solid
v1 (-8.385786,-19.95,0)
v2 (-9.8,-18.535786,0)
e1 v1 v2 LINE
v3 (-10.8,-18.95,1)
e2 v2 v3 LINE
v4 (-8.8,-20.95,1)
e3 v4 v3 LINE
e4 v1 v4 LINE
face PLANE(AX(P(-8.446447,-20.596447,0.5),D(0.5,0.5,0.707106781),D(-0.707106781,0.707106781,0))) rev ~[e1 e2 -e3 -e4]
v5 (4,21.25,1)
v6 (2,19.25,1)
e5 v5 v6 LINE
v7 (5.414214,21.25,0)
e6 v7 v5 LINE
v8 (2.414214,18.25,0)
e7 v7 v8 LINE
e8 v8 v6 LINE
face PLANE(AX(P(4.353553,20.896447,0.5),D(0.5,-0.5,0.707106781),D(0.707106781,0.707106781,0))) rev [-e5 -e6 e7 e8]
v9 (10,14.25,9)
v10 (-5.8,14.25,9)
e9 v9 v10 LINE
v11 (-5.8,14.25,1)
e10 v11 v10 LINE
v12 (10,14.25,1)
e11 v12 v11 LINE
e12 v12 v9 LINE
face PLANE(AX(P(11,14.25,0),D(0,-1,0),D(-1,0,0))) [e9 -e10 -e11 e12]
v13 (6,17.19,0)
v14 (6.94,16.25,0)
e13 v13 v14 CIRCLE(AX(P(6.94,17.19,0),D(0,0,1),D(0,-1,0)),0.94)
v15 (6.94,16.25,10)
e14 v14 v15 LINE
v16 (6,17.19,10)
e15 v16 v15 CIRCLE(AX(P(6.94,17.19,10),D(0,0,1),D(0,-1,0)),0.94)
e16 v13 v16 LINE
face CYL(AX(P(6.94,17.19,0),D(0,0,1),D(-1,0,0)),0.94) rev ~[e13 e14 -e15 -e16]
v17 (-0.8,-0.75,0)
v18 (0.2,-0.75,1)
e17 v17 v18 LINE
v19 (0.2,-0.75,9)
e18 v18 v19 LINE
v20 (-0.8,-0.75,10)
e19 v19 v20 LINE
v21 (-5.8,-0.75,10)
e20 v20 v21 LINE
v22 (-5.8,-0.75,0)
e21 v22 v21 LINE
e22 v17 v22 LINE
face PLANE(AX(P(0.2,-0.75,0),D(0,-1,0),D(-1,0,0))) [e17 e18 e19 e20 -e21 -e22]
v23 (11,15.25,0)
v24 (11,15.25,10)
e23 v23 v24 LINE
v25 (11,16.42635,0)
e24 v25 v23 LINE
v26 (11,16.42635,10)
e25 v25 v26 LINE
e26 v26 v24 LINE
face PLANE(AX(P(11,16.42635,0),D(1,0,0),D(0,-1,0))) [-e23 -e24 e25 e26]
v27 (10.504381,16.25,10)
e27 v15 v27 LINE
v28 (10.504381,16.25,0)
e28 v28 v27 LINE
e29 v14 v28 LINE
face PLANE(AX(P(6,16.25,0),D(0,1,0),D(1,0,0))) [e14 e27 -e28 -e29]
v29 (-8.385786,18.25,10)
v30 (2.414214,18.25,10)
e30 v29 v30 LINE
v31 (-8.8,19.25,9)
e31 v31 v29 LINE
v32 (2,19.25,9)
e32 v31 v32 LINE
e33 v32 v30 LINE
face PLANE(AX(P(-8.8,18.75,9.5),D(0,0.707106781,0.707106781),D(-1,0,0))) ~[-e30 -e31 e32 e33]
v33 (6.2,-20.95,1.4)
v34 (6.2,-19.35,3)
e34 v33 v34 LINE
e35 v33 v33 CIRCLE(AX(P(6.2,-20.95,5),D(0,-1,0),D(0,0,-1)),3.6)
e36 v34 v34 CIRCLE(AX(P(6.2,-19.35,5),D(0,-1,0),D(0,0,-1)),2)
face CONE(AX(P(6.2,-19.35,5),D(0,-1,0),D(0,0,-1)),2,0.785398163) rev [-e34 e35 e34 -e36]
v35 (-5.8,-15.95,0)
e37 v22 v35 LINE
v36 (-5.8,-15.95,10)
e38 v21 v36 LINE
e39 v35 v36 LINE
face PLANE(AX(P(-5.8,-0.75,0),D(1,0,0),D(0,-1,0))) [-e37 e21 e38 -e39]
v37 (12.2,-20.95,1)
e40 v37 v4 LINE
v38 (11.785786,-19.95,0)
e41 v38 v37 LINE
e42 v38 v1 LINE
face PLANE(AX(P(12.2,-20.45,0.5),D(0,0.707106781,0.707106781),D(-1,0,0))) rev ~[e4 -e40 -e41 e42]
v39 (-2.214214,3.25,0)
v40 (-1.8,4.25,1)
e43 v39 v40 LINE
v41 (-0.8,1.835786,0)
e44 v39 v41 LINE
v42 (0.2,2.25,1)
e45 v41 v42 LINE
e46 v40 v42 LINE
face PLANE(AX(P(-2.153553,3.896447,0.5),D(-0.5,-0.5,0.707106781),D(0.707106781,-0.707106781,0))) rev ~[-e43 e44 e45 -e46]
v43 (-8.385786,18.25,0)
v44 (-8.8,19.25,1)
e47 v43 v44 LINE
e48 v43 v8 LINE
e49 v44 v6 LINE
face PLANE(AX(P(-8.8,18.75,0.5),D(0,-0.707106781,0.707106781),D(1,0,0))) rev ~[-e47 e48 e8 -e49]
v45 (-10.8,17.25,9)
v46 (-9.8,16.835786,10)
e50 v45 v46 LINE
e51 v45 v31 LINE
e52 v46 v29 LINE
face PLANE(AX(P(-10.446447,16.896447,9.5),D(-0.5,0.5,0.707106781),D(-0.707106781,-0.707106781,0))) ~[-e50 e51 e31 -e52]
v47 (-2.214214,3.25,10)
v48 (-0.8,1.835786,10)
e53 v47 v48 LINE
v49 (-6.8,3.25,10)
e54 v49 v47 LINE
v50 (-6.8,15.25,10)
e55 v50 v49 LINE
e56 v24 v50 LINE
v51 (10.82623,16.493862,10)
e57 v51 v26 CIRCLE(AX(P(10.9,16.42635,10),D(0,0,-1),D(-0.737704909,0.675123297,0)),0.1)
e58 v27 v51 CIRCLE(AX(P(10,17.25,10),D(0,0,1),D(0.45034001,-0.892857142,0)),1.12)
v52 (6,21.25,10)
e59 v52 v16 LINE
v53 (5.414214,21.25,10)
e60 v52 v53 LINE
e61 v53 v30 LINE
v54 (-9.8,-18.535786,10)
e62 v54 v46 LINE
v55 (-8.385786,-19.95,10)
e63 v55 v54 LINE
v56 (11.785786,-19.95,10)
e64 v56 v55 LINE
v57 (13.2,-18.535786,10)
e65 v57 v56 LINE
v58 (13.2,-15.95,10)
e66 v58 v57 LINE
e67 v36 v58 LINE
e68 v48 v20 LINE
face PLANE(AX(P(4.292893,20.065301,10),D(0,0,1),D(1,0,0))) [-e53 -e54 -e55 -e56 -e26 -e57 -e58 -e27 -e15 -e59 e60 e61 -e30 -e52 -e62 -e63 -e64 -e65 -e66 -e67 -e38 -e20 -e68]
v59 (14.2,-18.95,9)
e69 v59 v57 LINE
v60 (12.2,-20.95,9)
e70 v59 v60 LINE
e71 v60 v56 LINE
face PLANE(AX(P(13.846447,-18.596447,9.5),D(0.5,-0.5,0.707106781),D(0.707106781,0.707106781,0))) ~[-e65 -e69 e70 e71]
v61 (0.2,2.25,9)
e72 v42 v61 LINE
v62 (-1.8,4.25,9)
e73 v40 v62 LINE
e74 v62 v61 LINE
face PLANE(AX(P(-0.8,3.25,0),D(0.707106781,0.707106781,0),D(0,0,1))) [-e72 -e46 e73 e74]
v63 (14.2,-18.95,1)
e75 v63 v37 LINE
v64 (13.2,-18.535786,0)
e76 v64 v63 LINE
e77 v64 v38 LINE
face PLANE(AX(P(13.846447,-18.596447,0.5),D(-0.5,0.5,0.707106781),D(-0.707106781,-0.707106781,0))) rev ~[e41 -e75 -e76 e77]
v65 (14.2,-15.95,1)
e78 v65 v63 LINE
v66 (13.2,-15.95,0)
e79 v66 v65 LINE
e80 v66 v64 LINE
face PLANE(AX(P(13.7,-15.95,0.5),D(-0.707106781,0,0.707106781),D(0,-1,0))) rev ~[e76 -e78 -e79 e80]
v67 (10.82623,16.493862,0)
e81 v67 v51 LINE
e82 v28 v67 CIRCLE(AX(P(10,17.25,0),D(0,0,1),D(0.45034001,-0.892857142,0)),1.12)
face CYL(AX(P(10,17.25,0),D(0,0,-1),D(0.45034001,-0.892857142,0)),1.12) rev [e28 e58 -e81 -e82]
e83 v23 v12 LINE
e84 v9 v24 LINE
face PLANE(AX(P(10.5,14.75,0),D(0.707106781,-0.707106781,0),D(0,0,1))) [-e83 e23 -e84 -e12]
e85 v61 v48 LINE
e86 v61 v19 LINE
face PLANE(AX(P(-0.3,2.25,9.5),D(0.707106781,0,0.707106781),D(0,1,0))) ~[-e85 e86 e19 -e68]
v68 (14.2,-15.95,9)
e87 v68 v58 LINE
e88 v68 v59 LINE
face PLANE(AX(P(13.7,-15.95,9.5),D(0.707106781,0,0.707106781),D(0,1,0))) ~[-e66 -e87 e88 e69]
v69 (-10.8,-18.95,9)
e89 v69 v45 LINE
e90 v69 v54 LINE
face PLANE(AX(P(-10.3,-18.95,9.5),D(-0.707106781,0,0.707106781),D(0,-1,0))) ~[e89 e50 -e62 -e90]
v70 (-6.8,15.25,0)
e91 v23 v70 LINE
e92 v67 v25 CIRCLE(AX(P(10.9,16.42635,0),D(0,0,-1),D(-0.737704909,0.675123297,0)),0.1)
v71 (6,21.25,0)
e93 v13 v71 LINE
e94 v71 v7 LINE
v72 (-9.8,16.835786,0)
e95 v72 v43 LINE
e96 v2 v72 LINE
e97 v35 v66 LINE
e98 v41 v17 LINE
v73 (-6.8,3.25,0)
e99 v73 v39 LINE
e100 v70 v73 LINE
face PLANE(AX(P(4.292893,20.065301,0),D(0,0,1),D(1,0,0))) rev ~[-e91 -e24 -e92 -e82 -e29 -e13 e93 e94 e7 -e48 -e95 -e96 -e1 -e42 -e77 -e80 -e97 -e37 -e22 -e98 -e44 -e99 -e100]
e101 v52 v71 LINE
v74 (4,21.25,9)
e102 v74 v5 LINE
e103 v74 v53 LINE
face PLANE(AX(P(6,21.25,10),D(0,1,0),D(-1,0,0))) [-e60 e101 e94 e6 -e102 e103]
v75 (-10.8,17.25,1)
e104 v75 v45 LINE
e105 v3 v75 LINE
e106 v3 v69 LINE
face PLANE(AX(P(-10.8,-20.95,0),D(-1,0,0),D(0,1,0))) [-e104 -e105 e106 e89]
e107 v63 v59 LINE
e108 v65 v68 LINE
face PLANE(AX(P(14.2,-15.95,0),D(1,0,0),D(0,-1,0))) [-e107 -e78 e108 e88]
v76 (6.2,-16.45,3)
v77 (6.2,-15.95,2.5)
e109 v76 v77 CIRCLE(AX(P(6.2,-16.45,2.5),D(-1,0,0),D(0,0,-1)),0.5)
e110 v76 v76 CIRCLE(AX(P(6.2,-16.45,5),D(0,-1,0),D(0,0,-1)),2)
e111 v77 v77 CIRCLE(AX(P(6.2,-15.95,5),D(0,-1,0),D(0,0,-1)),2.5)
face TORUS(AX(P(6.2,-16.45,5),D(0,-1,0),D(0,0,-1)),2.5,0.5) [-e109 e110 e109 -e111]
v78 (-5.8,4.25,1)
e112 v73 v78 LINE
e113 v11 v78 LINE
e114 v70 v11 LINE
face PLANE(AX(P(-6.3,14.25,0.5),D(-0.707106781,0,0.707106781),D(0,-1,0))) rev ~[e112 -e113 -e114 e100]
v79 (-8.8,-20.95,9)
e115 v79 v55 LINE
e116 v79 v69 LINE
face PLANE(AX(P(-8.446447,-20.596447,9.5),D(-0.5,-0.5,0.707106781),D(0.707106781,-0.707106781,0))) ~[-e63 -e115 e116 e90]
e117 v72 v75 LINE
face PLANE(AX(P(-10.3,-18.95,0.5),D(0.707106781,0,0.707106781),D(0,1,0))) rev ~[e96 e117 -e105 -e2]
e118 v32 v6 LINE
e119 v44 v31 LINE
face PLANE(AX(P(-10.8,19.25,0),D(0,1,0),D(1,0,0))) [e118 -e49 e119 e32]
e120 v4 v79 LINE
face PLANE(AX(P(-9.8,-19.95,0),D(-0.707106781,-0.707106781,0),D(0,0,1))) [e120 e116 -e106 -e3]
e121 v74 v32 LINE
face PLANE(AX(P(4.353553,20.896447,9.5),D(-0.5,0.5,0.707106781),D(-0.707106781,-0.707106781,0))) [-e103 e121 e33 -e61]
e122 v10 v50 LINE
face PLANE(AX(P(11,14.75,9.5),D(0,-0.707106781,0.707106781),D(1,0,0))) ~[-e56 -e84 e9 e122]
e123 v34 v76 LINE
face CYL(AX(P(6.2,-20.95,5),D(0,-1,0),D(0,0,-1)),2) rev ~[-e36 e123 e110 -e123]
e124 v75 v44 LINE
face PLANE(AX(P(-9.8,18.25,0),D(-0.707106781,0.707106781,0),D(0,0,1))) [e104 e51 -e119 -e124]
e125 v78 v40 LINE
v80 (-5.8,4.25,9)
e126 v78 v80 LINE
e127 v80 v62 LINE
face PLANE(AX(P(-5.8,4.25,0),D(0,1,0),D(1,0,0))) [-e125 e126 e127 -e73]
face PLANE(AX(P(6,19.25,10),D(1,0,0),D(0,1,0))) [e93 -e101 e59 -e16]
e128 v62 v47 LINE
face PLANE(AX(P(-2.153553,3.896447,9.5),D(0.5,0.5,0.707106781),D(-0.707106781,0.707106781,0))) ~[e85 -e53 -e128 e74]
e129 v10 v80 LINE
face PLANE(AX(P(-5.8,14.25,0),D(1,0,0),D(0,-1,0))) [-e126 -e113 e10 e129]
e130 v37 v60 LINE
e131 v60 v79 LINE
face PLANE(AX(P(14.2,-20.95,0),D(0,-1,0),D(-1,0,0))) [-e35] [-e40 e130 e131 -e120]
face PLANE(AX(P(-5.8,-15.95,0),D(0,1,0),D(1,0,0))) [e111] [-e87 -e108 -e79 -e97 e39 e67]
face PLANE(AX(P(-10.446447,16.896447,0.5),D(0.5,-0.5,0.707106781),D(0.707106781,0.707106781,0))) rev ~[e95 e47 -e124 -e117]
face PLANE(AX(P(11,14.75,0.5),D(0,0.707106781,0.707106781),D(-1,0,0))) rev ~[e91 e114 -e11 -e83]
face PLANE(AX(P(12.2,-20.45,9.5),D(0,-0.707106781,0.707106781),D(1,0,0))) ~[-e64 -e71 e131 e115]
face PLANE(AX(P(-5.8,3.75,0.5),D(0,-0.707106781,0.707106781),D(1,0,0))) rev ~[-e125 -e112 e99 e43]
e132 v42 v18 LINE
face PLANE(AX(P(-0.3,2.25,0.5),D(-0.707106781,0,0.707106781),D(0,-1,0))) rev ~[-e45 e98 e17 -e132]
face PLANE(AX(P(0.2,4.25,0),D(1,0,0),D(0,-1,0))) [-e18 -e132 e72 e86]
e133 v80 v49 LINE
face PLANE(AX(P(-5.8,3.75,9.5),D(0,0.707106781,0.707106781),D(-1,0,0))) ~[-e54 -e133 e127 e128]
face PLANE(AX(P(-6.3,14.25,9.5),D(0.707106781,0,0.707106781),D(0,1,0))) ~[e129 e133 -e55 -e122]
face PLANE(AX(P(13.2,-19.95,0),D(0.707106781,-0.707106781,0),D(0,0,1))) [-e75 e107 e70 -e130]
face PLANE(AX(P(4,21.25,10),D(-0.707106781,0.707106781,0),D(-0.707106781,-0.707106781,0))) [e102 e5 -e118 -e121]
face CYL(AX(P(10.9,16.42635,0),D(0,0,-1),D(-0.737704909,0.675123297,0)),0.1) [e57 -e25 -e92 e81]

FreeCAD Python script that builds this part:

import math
import FreeCAD as App
import Part
import Sketcher
from FreeCAD import Vector


def edges_at(feature, points):
    """Names of the edges that pass closest to the given points."""
    edges = feature.Shape.Edges
    near = lambda p: min(range(len(edges)), key=lambda i: edges[i].distToShape(Part.Vertex(*p))[0])
    return sorted({f"Edge{near(p) + 1}" for p in points})

doc = App.newDocument("Part")
body = doc.addObject("PartDesign::Body", "Body")

# Sketch on XY plane
sketch1 = doc.addObject("Sketcher::SketchObject", "Sketch")
body.addObject(sketch1)
sketch1.AttachmentSupport = (doc.XY_Plane, [""])
sketch1.MapMode = "FlatFace"
sketch1.addGeometry([
    Part.LineSegment(Vector(-5.8, 14.25, 0), Vector(11, 14.25, 0)),  # 0
    Part.LineSegment(Vector(11, 14.25, 0), Vector(11, 16.43, 0)),  # 1
    Part.ArcOfCircle(Part.Circle(Vector(10.9, 16.43, 0), Vector(0, 0, 1), 0.1), math.radians(0), math.radians(138)),  # 2
    Part.ArcOfCircle(Part.Circle(Vector(10, 17.25, 0), Vector(0, 0, 1), 1.12), math.radians(-63), math.radians(-42)),  # 3
    Part.LineSegment(Vector(10.5, 16.25, 0), Vector(6, 16.25, 0)),  # 4
    Part.LineSegment(Vector(6, 16.25, 0), Vector(6, 19.25, 0)),  # 5
    Part.LineSegment(Vector(6, 19.25, 0), Vector(-10.8, 19.25, 0)),  # 6
    Part.LineSegment(Vector(-10.8, 19.25, 0), Vector(-10.8, -20.95, 0)),  # 7
    Part.LineSegment(Vector(-10.8, -20.95, 0), Vector(14.2, -20.95, 0)),  # 8
    Part.LineSegment(Vector(14.2, -20.95, 0), Vector(14.2, -15.95, 0)),  # 9
    Part.LineSegment(Vector(14.2, -15.95, 0), Vector(-5.8, -15.95, 0)),  # 10
    Part.LineSegment(Vector(-5.8, -15.95, 0), Vector(-5.8, -0.75, 0)),  # 11
    Part.LineSegment(Vector(-5.8, -0.75, 0), Vector(0.2, -0.75, 0)),  # 12
    Part.LineSegment(Vector(0.2, -0.75, 0), Vector(0.2, 4.25, 0)),  # 13
    Part.LineSegment(Vector(0.2, 4.25, 0), Vector(-5.8, 4.25, 0)),  # 14
    Part.LineSegment(Vector(-5.8, 4.25, 0), Vector(-5.8, 14.25, 0)),  # 15
], False)
sketch1.addConstraint([
    Sketcher.Constraint("Coincident", 0, 2, 1, 1),
    Sketcher.Constraint("Tangent", 1, 2, 2, 1),
    Sketcher.Constraint("Tangent", 2, 2, 3, 2),
    Sketcher.Constraint("Coincident", 3, 1, 4, 1),
    Sketcher.Constraint("Coincident", 4, 2, 5, 1),
    Sketcher.Constraint("Coincident", 5, 2, 6, 1),
    Sketcher.Constraint("Coincident", 6, 2, 7, 1),
    Sketcher.Constraint("Coincident", 7, 2, 8, 1),
    Sketcher.Constraint("Coincident", 8, 2, 9, 1),
    Sketcher.Constraint("Coincident", 9, 2, 10, 1),
    Sketcher.Constraint("Coincident", 10, 2, 11, 1),
    Sketcher.Constraint("Coincident", 11, 2, 12, 1),
    Sketcher.Constraint("Coincident", 12, 2, 13, 1),
    Sketcher.Constraint("Coincident", 13, 2, 14, 1),
    Sketcher.Constraint("Coincident", 14, 2, 15, 1),
    Sketcher.Constraint("Coincident", 15, 2, 0, 1),
    Sketcher.Constraint("Horizontal", 0),
    Sketcher.Constraint("Vertical", 1),
    Sketcher.Constraint("Horizontal", 4),
    Sketcher.Constraint("Vertical", 5),
    Sketcher.Constraint("Horizontal", 6),
    Sketcher.Constraint("Vertical", 7),
    Sketcher.Constraint("Horizontal", 8),
    Sketcher.Constraint("Vertical", 9),
    Sketcher.Constraint("Horizontal", 10),
    Sketcher.Constraint("Vertical", 11),
    Sketcher.Constraint("Horizontal", 12),
    Sketcher.Constraint("Vertical", 13),
    Sketcher.Constraint("Horizontal", 14),
    Sketcher.Constraint("Vertical", 15),
    Sketcher.Constraint("Vertical", 11, 2, 14, 2),
    Sketcher.Constraint("Equal", 0, 6),
    Sketcher.Constraint("Equal", 9, 13),
    Sketcher.Constraint("Radius", 2, 0.1),
    Sketcher.Constraint("DistanceX", 8, 1, 8, 2, 25.0),
    Sketcher.Constraint("DistanceX", 10, 2, 10, 1, 20.0),
    Sketcher.Constraint("DistanceX", 12, 1, 12, 2, 6.0),
    Sketcher.Constraint("DistanceY", 5, 1, 5, 2, 3.0),
    Sketcher.Constraint("DistanceY", 9, 1, 9, 2, 5.0),
    Sketcher.Constraint("DistanceY", 15, 1, 15, 2, 10.0),
    Sketcher.Constraint("Radius", 3, 1.12),
    Sketcher.Constraint("DistanceX", 0, 1, 0, 2, 16.8),
    Sketcher.Constraint("DistanceY", 7, 2, 7, 1, 40.2),
    Sketcher.Constraint("DistanceY", 11, 1, 11, 2, 15.2),
    Sketcher.Constraint("DistanceX", -1, 1, 3, 3, 10.0),
    Sketcher.Constraint("DistanceX", -1, 1, 0, 2, 11.0),
    Sketcher.Constraint("DistanceY", 0, 2, 3, 3, 3.0),
    Sketcher.Constraint("DistanceY", -1, 1, 3, 3, 17.25),
])
pad1 = doc.addObject("PartDesign::Pad", "Pad")
body.addObject(pad1)
pad1.Profile = sketch1
pad1.Length = 10

# Sketch on XZ plane
sketch2 = doc.addObject("Sketcher::SketchObject", "Sketch001")
body.addObject(sketch2)
sketch2.AttachmentSupport = (doc.XZ_Plane, [""])
sketch2.MapMode = "FlatFace"
sketch2.AttachmentOffset = App.Placement(Vector(0, 0, 20.95), App.Rotation())
sketch2.addGeometry(Part.Circle(Vector(6.2, 5, 0), Vector(0, 0, 1), 2), False)
sketch2.addConstraint([
    Sketcher.Constraint("Diameter", 0, 4.0),
    Sketcher.Constraint("DistanceY", -1, 1, 0, 3, 5.0),
    Sketcher.Constraint("DistanceX", -1, 1, 0, 3, 6.2),
])
pocket1 = doc.addObject("PartDesign::Pocket", "Pocket")
body.addObject(pocket1)
pocket1.Profile = sketch2
pocket1.Length = 15
doc.recompute()

chamfer = doc.addObject("PartDesign::Chamfer", "Chamfer")
body.addObject(chamfer)
chamfer.Base = (pocket1, edges_at(pocket1, [(6.2, -20.95, 7)]))
chamfer.Size = 1.6
doc.recompute()

fillet = doc.addObject("PartDesign::Fillet", "Fillet")
body.addObject(fillet)
fillet.Base = (chamfer, edges_at(chamfer, [(6.2, -15.95, 7)]))
fillet.Radius = 0.5
doc.recompute()

fillet2 = doc.addObject("PartDesign::Fillet", "Fillet001")
body.addObject(fillet2)
fillet2.Base = (fillet, edges_at(fillet, [(6, 16.25, 5)]))
fillet2.Radius = 0.94

# Sketch on XY plane
sketch3 = doc.addObject("Sketcher::SketchObject", "Sketch002")
body.addObject(sketch3)
sketch3.AttachmentSupport = (doc.XY_Plane, [""])
sketch3.MapMode = "FlatFace"
sketch3.AttachmentOffset = App.Placement(Vector(0, 0, 10), App.Rotation())
sketch3.addGeometry([
    Part.LineSegment(Vector(6, 19.2, 0), Vector(6, 21.2, 0)),
    Part.LineSegment(Vector(6, 21.2, 0), Vector(4, 21.2, 0)),
    Part.LineSegment(Vector(4, 21.2, 0), Vector(2, 19.2, 0)),
    Part.LineSegment(Vector(2, 19.2, 0), Vector(6, 19.2, 0)),
], False)
sketch3.addConstraint([
    Sketcher.Constraint("Coincident", 0, 2, 1, 1),
    Sketcher.Constraint("Coincident", 1, 2, 2, 1),
    Sketcher.Constraint("Coincident", 2, 2, 3, 1),
    Sketcher.Constraint("Coincident", 3, 2, 0, 1),
    Sketcher.Constraint("Vertical", 0),
    Sketcher.Constraint("Horizontal", 1),
    Sketcher.Constraint("Horizontal", 3),
    Sketcher.Constraint("Equal", 1, 0),
    Sketcher.Constraint("DistanceX", 1, 2, 1, 1, 2.0),
    Sketcher.Constraint("DistanceX", 3, 1, 3, 2, 4.0),
    Sketcher.Constraint("DistanceX", -1, 1, 0, 2, 6.0),
    Sketcher.Constraint("DistanceY", -1, 1, 0, 2, 21.25),
])
pad2 = doc.addObject("PartDesign::Pad", "Pad001")
body.addObject(pad2)
pad2.Profile = sketch3
pad2.Length = 10
pad2.Reversed = True
doc.recompute()

chamfer2 = doc.addObject("PartDesign::Chamfer", "Chamfer001")
body.addObject(chamfer2)
chamfer2.Base = (pad2, edges_at(pad2, [
    (14.2, -20.95, 5),
    (-10.8, -20.95, 5),
    (-10.8, 19.25, 5),
    (0.2, 4.25, 5),
]))
chamfer2.Size = 2
doc.recompute()

chamfer3 = doc.addObject("PartDesign::Chamfer", "Chamfer002")
body.addObject(chamfer3)
chamfer3.Base = (chamfer2, edges_at(chamfer2, [
    (-5.8, 9.25, 10),
    (2.6, 14.25, 10),
    (2.6, 14.25, 0),
    (-5.8, 9.25, 0),
    (0.2, 0.75, 0),
    (11, 14.25, 5),
    (0.2, 0.75, 10),
    (-3.4, 19.25, 0),
    (-3.4, 19.25, 10),
    (3, 20.25, 10),
    (3, 20.25, 0),
    (-3.8, 4.25, 0),
    (-3.8, 4.25, 10),
    (14.2, -17.45, 0),
    (1.7, -20.95, 0),
    (-10.8, -0.85, 0),
    (-9.8, 18.25, 0),
    (-9.8, -19.95, 0),
    (13.2, -19.95, 0),
    (-0.8, 3.25, 0),
    (-10.8, -0.85, 10),
    (1.7, -20.95, 10),
    (14.2, -17.45, 10),
    (-9.8, 18.25, 10),
    (-9.8, -19.95, 10),
    (13.2, -19.95, 10),
    (-0.8, 3.25, 10),
]))
chamfer3.Size = 1

doc.recompute()
